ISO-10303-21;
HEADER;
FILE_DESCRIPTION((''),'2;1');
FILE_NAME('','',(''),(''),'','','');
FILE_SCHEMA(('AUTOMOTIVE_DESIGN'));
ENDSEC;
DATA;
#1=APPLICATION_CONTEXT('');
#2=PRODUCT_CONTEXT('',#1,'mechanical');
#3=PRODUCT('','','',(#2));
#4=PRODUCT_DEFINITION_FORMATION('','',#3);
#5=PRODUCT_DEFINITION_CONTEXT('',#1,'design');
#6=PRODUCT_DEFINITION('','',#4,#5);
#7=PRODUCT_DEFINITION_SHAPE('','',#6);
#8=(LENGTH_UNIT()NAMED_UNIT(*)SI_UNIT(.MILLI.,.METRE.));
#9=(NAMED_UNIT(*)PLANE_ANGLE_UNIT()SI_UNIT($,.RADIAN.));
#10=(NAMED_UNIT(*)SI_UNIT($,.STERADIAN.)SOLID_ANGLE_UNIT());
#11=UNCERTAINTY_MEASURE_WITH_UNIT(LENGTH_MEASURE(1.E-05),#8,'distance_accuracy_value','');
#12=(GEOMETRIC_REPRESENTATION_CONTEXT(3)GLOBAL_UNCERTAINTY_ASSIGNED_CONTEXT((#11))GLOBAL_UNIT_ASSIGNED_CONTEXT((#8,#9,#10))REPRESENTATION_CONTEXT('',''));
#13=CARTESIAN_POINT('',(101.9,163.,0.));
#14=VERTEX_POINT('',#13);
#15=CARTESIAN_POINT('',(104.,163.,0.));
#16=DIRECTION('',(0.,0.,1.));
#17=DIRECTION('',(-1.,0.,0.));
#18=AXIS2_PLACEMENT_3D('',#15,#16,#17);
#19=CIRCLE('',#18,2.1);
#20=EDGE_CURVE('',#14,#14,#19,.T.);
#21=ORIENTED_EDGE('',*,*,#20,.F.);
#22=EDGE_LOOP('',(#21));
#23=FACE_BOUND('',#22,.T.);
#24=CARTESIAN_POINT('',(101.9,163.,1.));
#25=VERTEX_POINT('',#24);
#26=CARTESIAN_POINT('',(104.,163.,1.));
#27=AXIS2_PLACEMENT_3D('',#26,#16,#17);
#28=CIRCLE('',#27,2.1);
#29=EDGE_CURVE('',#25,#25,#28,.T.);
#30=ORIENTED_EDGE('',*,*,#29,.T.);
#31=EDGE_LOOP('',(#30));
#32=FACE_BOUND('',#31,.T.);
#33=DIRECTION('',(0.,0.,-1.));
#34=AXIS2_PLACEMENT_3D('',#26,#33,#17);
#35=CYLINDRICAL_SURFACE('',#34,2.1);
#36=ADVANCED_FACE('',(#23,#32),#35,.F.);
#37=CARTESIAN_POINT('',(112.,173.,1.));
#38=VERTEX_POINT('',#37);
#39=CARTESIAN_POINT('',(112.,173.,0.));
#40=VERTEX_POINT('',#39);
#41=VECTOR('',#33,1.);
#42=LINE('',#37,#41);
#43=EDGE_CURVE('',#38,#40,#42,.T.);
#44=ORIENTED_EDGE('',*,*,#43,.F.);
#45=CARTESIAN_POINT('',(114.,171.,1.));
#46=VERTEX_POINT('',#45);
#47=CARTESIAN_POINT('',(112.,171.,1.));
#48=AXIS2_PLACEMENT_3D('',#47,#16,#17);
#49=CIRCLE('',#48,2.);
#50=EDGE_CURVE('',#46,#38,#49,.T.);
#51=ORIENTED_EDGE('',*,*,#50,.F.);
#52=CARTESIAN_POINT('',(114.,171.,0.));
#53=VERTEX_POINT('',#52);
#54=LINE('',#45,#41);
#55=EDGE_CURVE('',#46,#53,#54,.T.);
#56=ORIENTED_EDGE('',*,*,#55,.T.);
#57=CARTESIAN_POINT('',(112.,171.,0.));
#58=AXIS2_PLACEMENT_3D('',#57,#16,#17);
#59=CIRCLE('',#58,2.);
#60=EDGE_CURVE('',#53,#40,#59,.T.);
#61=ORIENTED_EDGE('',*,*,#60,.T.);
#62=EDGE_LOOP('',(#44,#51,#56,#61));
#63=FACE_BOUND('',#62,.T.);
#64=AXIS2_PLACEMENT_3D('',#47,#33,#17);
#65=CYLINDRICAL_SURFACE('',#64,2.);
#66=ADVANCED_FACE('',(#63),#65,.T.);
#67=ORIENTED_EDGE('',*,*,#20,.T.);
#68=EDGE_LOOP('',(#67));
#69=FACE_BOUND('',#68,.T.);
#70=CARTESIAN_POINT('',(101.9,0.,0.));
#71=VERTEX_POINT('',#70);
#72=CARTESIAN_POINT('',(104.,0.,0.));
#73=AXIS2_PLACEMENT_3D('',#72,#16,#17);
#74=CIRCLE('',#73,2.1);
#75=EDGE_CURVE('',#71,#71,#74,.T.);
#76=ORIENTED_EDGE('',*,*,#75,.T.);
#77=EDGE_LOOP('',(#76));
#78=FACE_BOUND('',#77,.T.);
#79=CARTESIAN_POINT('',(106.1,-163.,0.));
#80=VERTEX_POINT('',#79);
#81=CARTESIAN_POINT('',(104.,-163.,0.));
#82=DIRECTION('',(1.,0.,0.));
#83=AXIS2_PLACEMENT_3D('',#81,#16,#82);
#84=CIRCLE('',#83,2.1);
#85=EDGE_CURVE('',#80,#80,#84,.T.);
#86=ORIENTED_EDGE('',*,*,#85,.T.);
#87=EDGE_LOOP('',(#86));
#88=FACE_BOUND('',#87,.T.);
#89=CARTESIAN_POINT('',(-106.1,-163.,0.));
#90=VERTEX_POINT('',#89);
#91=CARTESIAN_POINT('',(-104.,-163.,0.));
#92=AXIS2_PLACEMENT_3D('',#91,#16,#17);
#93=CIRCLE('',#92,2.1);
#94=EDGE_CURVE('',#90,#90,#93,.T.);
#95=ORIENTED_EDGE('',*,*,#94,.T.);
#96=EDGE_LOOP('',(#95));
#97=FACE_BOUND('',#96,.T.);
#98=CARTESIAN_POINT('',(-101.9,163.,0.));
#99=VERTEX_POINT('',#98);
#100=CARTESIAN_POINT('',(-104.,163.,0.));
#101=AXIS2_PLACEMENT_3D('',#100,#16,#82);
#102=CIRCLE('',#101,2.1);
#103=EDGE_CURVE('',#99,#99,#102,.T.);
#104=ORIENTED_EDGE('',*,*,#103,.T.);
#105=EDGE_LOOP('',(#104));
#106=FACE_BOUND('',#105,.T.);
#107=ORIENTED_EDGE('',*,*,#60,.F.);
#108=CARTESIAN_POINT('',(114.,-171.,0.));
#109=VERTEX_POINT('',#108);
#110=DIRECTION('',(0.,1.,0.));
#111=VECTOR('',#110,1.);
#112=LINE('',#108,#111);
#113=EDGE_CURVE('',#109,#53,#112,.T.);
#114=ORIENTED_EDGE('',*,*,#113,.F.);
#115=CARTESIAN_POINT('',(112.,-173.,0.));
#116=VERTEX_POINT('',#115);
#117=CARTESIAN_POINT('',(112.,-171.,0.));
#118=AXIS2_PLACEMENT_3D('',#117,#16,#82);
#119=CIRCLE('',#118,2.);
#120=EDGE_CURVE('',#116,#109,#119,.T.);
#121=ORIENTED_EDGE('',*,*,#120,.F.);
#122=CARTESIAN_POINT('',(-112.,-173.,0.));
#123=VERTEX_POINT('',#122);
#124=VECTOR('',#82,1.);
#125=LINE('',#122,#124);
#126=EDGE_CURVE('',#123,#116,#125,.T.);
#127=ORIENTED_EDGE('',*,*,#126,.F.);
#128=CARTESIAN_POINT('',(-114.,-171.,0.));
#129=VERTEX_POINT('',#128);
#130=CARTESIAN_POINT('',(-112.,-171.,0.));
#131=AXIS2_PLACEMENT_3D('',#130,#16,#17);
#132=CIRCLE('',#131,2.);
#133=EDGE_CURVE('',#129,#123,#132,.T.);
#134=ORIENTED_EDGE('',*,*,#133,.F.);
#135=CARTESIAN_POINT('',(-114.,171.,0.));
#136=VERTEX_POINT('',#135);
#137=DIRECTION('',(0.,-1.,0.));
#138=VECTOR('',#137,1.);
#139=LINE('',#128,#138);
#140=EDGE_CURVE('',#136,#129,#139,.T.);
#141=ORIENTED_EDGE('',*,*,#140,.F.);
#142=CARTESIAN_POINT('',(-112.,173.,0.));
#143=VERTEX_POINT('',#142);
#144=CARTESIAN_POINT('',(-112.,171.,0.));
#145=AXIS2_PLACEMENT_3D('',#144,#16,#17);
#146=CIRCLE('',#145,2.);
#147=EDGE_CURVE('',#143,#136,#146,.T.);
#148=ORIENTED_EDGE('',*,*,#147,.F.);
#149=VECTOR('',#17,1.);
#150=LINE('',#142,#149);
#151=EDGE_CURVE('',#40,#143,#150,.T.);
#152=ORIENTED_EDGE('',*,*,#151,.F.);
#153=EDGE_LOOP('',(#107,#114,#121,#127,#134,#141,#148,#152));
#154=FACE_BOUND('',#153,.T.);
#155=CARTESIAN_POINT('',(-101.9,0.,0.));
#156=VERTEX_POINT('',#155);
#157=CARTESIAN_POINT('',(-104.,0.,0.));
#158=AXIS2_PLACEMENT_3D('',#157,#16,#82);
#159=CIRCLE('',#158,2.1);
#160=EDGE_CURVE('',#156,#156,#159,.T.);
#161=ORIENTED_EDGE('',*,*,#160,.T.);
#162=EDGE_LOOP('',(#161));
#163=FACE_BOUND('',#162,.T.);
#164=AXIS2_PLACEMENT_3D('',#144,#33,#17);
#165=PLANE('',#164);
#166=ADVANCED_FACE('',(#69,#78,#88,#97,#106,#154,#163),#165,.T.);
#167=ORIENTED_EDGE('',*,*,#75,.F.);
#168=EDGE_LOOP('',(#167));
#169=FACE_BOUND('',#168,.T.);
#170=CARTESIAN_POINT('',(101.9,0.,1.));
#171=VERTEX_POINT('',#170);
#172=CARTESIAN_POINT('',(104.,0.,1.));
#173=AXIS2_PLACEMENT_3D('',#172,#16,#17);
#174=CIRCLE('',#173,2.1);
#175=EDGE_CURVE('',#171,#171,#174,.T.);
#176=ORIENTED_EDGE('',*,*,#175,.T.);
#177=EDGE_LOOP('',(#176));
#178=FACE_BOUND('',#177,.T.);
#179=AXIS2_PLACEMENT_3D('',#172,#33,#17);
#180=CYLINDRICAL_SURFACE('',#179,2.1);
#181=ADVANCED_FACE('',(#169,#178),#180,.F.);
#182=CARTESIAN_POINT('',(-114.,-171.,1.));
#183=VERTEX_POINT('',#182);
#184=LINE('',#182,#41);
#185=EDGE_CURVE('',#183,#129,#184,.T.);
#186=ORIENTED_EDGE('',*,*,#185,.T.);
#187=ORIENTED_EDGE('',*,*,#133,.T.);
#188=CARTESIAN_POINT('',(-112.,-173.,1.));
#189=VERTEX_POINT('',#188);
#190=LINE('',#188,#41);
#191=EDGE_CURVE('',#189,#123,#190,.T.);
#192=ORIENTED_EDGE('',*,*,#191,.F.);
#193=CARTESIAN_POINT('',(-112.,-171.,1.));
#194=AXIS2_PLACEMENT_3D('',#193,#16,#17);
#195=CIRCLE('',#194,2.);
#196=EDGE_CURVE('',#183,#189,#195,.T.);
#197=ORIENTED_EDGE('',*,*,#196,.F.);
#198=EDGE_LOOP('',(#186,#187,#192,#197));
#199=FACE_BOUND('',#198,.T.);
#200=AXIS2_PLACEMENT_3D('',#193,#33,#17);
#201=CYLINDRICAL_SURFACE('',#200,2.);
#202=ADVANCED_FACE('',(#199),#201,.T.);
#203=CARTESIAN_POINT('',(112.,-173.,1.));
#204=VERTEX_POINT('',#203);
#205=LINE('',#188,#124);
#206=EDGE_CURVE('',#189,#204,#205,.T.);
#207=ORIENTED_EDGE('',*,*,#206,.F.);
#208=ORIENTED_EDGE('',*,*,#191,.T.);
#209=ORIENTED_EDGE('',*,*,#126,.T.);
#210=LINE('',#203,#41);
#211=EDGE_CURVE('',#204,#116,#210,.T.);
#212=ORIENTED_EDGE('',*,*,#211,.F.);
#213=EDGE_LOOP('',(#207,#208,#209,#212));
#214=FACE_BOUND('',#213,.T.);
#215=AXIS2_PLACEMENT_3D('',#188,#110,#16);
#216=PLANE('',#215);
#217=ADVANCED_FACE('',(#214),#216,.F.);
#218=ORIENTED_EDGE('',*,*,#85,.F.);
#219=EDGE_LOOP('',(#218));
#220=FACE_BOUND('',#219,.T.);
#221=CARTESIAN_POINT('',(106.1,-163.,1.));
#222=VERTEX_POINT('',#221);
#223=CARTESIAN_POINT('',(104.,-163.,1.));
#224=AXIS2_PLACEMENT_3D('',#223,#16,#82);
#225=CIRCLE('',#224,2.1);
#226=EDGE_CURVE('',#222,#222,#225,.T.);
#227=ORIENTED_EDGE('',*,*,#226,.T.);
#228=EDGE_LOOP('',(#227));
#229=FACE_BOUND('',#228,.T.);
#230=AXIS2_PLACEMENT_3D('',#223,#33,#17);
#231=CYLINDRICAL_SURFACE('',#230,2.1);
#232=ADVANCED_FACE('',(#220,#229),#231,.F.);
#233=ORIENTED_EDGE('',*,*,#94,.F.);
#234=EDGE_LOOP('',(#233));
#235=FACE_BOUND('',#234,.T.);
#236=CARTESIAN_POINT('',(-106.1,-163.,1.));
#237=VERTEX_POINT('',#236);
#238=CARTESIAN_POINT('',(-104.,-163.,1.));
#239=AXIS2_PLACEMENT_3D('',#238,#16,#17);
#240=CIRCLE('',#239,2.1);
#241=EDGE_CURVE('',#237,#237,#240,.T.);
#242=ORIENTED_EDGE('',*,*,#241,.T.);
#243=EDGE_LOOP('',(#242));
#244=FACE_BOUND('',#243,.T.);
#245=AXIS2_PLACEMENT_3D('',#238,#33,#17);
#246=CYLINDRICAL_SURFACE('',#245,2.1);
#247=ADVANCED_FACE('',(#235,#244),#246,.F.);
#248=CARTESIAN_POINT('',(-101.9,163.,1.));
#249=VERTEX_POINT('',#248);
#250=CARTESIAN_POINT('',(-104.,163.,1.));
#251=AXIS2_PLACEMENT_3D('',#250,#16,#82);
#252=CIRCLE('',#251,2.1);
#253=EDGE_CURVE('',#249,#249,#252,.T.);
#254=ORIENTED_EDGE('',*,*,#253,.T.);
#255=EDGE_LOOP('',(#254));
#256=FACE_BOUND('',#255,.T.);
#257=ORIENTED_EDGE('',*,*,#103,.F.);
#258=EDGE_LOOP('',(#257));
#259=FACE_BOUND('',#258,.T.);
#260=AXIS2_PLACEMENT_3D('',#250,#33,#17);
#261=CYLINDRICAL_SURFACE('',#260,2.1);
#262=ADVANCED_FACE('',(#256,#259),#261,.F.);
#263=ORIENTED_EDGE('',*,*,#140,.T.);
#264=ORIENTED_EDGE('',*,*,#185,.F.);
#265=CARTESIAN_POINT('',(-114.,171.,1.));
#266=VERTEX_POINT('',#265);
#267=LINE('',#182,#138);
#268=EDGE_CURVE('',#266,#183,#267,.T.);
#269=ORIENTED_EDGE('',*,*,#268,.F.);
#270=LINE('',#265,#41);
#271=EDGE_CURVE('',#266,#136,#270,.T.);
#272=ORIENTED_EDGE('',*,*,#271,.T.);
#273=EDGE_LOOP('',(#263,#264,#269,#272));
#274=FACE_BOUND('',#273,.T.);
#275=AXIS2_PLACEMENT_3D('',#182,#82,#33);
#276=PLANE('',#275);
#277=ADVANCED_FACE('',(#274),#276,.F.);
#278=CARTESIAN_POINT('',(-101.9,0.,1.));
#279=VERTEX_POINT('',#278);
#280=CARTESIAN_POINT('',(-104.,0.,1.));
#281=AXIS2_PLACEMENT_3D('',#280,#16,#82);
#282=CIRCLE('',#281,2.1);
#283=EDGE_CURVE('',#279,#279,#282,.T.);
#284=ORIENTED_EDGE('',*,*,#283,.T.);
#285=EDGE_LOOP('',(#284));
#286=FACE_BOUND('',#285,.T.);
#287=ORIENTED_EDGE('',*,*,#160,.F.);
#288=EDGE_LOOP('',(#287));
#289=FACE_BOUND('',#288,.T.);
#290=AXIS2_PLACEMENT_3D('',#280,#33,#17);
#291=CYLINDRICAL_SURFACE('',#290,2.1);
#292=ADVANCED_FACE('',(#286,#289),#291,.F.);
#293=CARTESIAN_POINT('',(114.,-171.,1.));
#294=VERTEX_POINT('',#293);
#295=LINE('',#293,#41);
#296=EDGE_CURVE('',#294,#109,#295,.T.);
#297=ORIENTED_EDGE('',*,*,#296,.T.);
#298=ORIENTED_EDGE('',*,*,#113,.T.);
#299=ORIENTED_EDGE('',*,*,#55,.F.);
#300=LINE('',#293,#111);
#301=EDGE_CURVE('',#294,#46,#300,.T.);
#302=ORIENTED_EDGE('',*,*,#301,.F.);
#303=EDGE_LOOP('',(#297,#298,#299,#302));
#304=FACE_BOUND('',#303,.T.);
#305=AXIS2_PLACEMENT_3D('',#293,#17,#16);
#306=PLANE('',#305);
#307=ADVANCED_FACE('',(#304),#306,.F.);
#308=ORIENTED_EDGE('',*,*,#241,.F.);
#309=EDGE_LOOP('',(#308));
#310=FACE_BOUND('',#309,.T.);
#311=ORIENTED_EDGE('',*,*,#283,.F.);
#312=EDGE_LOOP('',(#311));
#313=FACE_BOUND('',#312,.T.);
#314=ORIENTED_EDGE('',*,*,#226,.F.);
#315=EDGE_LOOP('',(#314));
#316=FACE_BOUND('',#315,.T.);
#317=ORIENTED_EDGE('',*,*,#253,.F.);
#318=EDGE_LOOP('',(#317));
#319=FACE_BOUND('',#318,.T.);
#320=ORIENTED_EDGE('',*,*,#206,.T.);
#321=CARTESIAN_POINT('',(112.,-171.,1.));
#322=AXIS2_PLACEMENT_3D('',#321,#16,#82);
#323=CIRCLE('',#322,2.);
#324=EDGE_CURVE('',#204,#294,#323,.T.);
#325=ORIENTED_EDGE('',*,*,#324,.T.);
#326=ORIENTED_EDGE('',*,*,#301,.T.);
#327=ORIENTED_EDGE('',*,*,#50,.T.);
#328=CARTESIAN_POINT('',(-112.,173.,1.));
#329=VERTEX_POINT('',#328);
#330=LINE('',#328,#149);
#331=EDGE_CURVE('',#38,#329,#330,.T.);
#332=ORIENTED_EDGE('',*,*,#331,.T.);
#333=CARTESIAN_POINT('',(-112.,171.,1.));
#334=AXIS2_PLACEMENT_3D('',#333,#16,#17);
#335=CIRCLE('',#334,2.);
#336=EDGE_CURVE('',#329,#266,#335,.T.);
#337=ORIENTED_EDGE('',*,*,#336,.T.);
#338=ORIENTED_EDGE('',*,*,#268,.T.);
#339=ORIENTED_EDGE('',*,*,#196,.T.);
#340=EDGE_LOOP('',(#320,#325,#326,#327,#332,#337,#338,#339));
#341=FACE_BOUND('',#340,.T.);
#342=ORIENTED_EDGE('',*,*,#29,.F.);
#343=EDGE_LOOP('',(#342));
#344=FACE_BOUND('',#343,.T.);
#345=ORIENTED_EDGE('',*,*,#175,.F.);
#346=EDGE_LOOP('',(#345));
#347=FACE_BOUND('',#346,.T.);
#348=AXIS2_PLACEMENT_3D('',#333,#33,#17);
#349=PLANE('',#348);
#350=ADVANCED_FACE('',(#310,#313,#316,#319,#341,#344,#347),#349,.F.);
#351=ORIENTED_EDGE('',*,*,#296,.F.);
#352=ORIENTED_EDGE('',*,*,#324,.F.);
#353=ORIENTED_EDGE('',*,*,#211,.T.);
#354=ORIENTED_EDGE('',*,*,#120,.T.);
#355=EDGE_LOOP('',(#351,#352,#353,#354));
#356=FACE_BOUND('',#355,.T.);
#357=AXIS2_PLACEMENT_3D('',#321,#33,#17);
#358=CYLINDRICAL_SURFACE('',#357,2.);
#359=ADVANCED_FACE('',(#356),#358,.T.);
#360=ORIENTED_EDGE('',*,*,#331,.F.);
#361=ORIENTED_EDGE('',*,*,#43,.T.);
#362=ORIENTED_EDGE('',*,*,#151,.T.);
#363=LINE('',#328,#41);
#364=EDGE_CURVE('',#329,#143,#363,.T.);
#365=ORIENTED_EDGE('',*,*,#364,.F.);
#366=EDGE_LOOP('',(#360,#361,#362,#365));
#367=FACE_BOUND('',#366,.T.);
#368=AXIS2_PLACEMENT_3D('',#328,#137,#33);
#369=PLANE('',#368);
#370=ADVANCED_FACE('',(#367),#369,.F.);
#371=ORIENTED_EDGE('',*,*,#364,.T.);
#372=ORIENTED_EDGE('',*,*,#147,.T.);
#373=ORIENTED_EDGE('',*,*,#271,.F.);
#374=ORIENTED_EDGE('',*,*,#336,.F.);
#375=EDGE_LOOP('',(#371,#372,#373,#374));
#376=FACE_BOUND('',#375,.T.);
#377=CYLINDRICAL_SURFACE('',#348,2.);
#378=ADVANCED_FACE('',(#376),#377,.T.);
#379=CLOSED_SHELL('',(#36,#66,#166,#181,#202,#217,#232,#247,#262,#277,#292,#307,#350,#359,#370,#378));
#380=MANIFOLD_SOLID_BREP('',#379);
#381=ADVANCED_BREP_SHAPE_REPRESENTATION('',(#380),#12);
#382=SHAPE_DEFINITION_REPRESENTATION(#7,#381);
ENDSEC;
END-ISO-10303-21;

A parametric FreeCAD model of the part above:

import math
import FreeCAD as App
import Part
import Sketcher
from FreeCAD import Vector
Q = App.Units.Quantity

doc = App.newDocument("Part")
body = doc.addObject("PartDesign::Body", "Body")

# Sketch on XY plane
sketch1 = doc.addObject("Sketcher::SketchObject", "Sketch")
body.addObject(sketch1)
sketch1.AttachmentSupport = (doc.XY_Plane, [""])
sketch1.MapMode = "FlatFace"
sketch1.addGeometry([
    Part.LineSegment(Vector(-112, -173, 0), Vector(112, -173, 0)),  # 0
    Part.ArcOfCircle(Part.Circle(Vector(112, -171, 0), Vector(0, 0, 1), 2), math.radians(-90), math.radians(0)),  # 1
    Part.LineSegment(Vector(114, -171, 0), Vector(114, 171, 0)),  # 2
    Part.ArcOfCircle(Part.Circle(Vector(112, 171, 0), Vector(0, 0, 1), 2), math.radians(0), math.radians(90)),  # 3
    Part.LineSegment(Vector(112, 173, 0), Vector(-112, 173, 0)),  # 4
    Part.ArcOfCircle(Part.Circle(Vector(-112, 171, 0), Vector(0, 0, 1), 2), math.radians(90), math.radians(180)),  # 5
    Part.LineSegment(Vector(-114, 171, 0), Vector(-114, -171, 0)),  # 6
    Part.ArcOfCircle(Part.Circle(Vector(-112, -171, 0), Vector(0, 0, 1), 2), math.radians(-180), math.radians(-90)),  # 7
    Part.Circle(Vector(-104, -163, 0), Vector(0, 0, 1), 2.1),  # 8
    Part.Circle(Vector(104, -163, 0), Vector(0, 0, 1), 2.1),  # 9
    Part.Circle(Vector(-104, 0, 0), Vector(0, 0, 1), 2.1),  # 10
    Part.Circle(Vector(-104, 163, 0), Vector(0, 0, 1), 2.1),  # 11
    Part.Circle(Vector(104, 0, 0), Vector(0, 0, 1), 2.1),  # 12
    Part.Circle(Vector(104, 163, 0), Vector(0, 0, 1), 2.1),  # 13
], False)
sketch1.addConstraint([
    Sketcher.Constraint("Tangent", 0, 2, 1, 1),
    Sketcher.Constraint("Tangent", 1, 2, 2, 1),
    Sketcher.Constraint("Tangent", 2, 2, 3, 1),
    Sketcher.Constraint("Tangent", 3, 2, 4, 1),
    Sketcher.Constraint("Tangent", 4, 2, 5, 1),
    Sketcher.Constraint("Tangent", 5, 2, 6, 1),
    Sketcher.Constraint("Tangent", 6, 2, 7, 1),
    Sketcher.Constraint("Tangent", 7, 2, 0, 1),
    Sketcher.Constraint("Horizontal", 0),
    Sketcher.Constraint("Vertical", 2),
    Sketcher.Constraint("Horizontal", 4),
    Sketcher.Constraint("Vertical", 6),
    Sketcher.Constraint("Equal", 1, 3),
    Sketcher.Constraint("Equal", 3, 5),
    Sketcher.Constraint("Equal", 5, 7),
    Sketcher.Constraint("Equal", 8, 9),
    Sketcher.Constraint("Equal", 9, 10),
    Sketcher.Constraint("Equal", 10, 11),
    Sketcher.Constraint("Equal", 11, 12),
    Sketcher.Constraint("Equal", 12, 13),
    Sketcher.Constraint("Symmetric", 1, 3, 5, 3, -1, 1),
    Sketcher.Constraint("Symmetric", 9, 3, 11, 3, -1, 1),
    Sketcher.Constraint("Symmetric", 10, 3, 12, 3, -1, 1),
    Sketcher.Constraint("Symmetric", 8, 3, 13, 3, -1, 1),
    Sketcher.Constraint("Symmetric", 8, 3, 9, 3, -2),
    Sketcher.Constraint("PointOnObject", 10, 3, -1),
    Sketcher.Constraint("Vertical", 8, 3, 10, 3),
    Sketcher.Constraint("Radius", 1, Q("2 mm")),
    Sketcher.Constraint("Diameter", 8, Q("4.2 mm")),
    Sketcher.Constraint("DistanceX", 0, 1, 0, 2, Q("224 mm")),
    Sketcher.Constraint("DistanceY", 2, 1, 2, 2, Q("342 mm")),
    Sketcher.Constraint("DistanceX", 8, 3, -1, 1, Q("104 mm")),
    Sketcher.Constraint("DistanceY", 8, 3, -1, 1, Q("163 mm")),
])
pad1 = doc.addObject("PartDesign::Pad", "Pad")
body.addObject(pad1)
pad1.Profile = sketch1
pad1.Length = 1

doc.recompute()
